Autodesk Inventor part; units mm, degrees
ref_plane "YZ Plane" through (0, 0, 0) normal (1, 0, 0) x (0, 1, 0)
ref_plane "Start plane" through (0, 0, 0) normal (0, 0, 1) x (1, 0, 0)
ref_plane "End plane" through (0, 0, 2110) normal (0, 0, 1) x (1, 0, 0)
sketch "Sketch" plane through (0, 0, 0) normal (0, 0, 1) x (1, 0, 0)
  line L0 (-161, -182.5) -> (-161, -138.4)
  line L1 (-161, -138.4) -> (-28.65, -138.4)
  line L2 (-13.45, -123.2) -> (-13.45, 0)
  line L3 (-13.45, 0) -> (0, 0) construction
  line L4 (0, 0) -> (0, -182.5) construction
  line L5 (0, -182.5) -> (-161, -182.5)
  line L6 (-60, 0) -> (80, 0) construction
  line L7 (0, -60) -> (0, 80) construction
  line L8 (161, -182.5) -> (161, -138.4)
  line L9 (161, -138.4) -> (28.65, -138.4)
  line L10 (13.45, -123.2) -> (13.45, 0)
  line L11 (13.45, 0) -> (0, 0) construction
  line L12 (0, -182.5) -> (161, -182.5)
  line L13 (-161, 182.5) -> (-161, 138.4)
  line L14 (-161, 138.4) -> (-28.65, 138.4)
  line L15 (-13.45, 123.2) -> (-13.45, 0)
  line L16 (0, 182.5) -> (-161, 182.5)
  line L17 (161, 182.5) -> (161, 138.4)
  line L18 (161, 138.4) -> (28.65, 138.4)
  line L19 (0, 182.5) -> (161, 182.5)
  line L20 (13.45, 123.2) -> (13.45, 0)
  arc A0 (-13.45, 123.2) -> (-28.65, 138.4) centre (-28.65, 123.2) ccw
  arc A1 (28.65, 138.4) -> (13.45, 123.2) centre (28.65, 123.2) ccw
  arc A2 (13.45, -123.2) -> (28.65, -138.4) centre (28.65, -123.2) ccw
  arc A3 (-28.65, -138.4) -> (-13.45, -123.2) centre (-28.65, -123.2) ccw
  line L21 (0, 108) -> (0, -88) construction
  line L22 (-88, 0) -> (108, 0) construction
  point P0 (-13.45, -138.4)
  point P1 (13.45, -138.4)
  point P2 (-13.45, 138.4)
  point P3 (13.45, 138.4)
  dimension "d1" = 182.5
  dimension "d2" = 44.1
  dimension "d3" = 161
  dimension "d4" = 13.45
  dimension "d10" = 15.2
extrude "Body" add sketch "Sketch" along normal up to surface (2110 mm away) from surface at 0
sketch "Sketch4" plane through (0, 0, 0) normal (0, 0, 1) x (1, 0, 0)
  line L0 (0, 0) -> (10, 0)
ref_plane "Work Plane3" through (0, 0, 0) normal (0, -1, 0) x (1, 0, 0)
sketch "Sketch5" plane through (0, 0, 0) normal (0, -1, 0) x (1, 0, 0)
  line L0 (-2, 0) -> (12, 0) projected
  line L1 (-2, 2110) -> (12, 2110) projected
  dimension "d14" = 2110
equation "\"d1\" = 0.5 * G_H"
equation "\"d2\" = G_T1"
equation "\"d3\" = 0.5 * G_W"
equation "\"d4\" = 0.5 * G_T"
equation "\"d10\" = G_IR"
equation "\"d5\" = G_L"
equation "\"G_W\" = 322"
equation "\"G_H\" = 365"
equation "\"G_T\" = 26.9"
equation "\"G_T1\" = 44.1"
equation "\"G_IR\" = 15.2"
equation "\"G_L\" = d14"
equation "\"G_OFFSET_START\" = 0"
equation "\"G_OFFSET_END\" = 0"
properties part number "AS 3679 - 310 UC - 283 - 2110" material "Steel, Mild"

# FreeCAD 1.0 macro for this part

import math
import FreeCAD as App
import Part
import Sketcher
Q = App.Units.Quantity

doc = App.newDocument("Part")
body = doc.addObject("PartDesign::Body", "Body")

sketch1 = body.newObject("Sketcher::SketchObject", "Sketch")
sketch1.AttachmentSupport = (doc.getObject("XY_Plane"), [""])
sketch1.MapMode = "FlatFace"
sketch1.addGeometry([
    Part.LineSegment(App.Vector(-161, -138, 0), App.Vector(-161, -182, 0)),
    Part.LineSegment(App.Vector(-161, -182, 0), App.Vector(161, -182, 0)),
    Part.LineSegment(App.Vector(161, -182, 0), App.Vector(161, -138, 0)),
    Part.LineSegment(App.Vector(161, -138, 0), App.Vector(29, -138, 0)),
    Part.ArcOfCircle(Part.Circle(App.Vector(29, -123, 0), App.Vector(0, 0, 1), 15), math.radians(180), math.radians(270)),
    Part.LineSegment(App.Vector(13, -123, 0), App.Vector(13, 123, 0)),
    Part.ArcOfCircle(Part.Circle(App.Vector(29, 123, 0), App.Vector(0, 0, 1), 15), math.radians(90), math.radians(180)),
    Part.LineSegment(App.Vector(29, 138, 0), App.Vector(161, 138, 0)),
    Part.LineSegment(App.Vector(161, 138, 0), App.Vector(161, 182, 0)),
    Part.LineSegment(App.Vector(161, 182, 0), App.Vector(-161, 182, 0)),
    Part.LineSegment(App.Vector(-161, 182, 0), App.Vector(-161, 138, 0)),
    Part.LineSegment(App.Vector(-161, 138, 0), App.Vector(-29, 138, 0)),
    Part.ArcOfCircle(Part.Circle(App.Vector(-29, 123, 0), App.Vector(0, 0, 1), 15), math.radians(0), math.radians(90)),
    Part.LineSegment(App.Vector(-13, 123, 0), App.Vector(-13, -123, 0)),
    Part.ArcOfCircle(Part.Circle(App.Vector(-29, -123, 0), App.Vector(0, 0, 1), 15), math.radians(-90), math.radians(0)),
    Part.LineSegment(App.Vector(-29, -138, 0), App.Vector(-161, -138, 0)),
], False)
sketch1.addConstraint([
    Sketcher.Constraint("Coincident", 0, 2, 1, 1),
    Sketcher.Constraint("Coincident", 1, 2, 2, 1),
    Sketcher.Constraint("Coincident", 2, 2, 3, 1),
    Sketcher.Constraint("Tangent", 3, 2, 4, 2),
    Sketcher.Constraint("Tangent", 4, 1, 5, 1),
    Sketcher.Constraint("Tangent", 5, 2, 6, 2),
    Sketcher.Constraint("Tangent", 6, 1, 7, 1),
    Sketcher.Constraint("Coincident", 7, 2, 8, 1),
    Sketcher.Constraint("Coincident", 8, 2, 9, 1),
    Sketcher.Constraint("Coincident", 9, 2, 10, 1),
    Sketcher.Constraint("Coincident", 10, 2, 11, 1),
    Sketcher.Constraint("Tangent", 11, 2, 12, 2),
    Sketcher.Constraint("Tangent", 12, 1, 13, 1),
    Sketcher.Constraint("Tangent", 13, 2, 14, 2),
    Sketcher.Constraint("Tangent", 14, 1, 15, 1),
    Sketcher.Constraint("Coincident", 15, 2, 0, 1),
    Sketcher.Constraint("Vertical", 0),
    Sketcher.Constraint("Horizontal", 1),
    Sketcher.Constraint("Vertical", 2),
    Sketcher.Constraint("Horizontal", 3),
    Sketcher.Constraint("Vertical", 5),
    Sketcher.Constraint("Horizontal", 7),
    Sketcher.Constraint("Vertical", 8),
    Sketcher.Constraint("Horizontal", 9),
    Sketcher.Constraint("Vertical", 10),
    Sketcher.Constraint("Horizontal", 11),
    Sketcher.Constraint("Vertical", 13),
    Sketcher.Constraint("Horizontal", 15),
    Sketcher.Constraint("Equal", 4, 6),
    Sketcher.Constraint("Equal", 6, 12),
    Sketcher.Constraint("Equal", 12, 14),
    Sketcher.Constraint("Symmetric", 4, 3, 12, 3, -1, 1),
    Sketcher.Constraint("Symmetric", 0, 2, 8, 2, -1, 1),
    Sketcher.Constraint("Symmetric", 7, 2, 10, 2, -2),
    Sketcher.Constraint("Symmetric", 2, 2, 15, 2, -2),
    Sketcher.Constraint("Radius", 4, Q("15.2 mm")),
    Sketcher.Constraint("DistanceY", 0, 2, 0, 1, Q("44.1 mm")),
    Sketcher.Constraint("DistanceX", 0, 2, -1, 1, Q("161 mm")),
    Sketcher.Constraint("DistanceY", 0, 2, -1, 1, Q("182.5 mm")),
    Sketcher.Constraint("DistanceX", -1, 1, 4, 1, Q("13.45 mm")),
])
pad1 = body.newObject("PartDesign::Pad", "Pad")
pad1.Profile = sketch1
pad1.Length = 2110

doc.recompute()
